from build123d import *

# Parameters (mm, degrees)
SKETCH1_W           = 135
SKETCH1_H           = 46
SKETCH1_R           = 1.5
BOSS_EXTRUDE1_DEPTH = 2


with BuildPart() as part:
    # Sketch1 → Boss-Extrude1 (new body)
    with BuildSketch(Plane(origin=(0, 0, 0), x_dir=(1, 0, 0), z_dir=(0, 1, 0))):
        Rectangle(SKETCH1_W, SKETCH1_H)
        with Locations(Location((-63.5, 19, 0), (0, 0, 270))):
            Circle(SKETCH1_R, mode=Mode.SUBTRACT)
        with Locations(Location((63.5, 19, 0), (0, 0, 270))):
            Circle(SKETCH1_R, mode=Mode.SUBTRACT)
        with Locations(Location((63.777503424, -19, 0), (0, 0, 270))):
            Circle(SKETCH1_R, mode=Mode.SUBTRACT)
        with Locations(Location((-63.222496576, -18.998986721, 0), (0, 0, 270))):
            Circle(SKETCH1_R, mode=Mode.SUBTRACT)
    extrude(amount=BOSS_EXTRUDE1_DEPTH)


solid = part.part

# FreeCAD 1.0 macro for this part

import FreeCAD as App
import Part
import Sketcher

V = App.Vector


def add_polygon(sketch, points):
    """Adds a closed chain of lines whose ends are joined by coincident constraints."""
    first, n = sketch.GeometryCount, len(points)
    for a, b in zip(points, points[1:] + points[:1]):
        sketch.addGeometry(Part.LineSegment(App.Vector(*a, 0), App.Vector(*b, 0)), False)
    for i in range(n):
        sketch.addConstraint(Sketcher.Constraint("Coincident", first + i, 2, first + (i + 1) % n, 1))

doc = App.newDocument("Part")
body = doc.addObject("PartDesign::Body", "Body")

# Sketch on XZ plane
sketch1 = body.newObject("Sketcher::SketchObject", "Sketch")
sketch1.AttachmentSupport = (doc.getObject("XZ_Plane"), [""])
sketch1.MapMode = "FlatFace"
add_polygon(sketch1, [(-67.5, -23), (-67.5, 23), (67.5, 23), (67.5, -23)])  # lines 0-3
sketch1.addGeometry(Part.Circle(V(-63.222497, 18.998987, 0), V(0, 0, 1), 1.5), False)  # 4
sketch1.addGeometry(Part.Circle(V(63.777503, 19, 0), V(0, 0, 1), 1.5), False)  # 5
sketch1.addGeometry(Part.Circle(V(-63.5, -19, 0), V(0, 0, 1), 1.5), False)  # 6
sketch1.addGeometry(Part.Circle(V(63.5, -19, 0), V(0, 0, 1), 1.5), False)  # 7
sketch1.addConstraint([
    Sketcher.Constraint("Vertical", 0),
    Sketcher.Constraint("Horizontal", 1),
    Sketcher.Constraint("Vertical", 2),
    Sketcher.Constraint("Horizontal", 3),
    Sketcher.Constraint("Equal", 4, 5),
    Sketcher.Constraint("Equal", 5, 6),
    Sketcher.Constraint("Equal", 6, 7),
    Sketcher.Constraint("Symmetric", 0, 2, 2, 2, -1, 1),
    Sketcher.Constraint("Symmetric", 6, 3, 7, 3, -2),
    Sketcher.Constraint("Diameter", 4, 3.0),
    Sketcher.Constraint("DistanceX", 1, 1, 1, 2, 135.0),
    Sketcher.Constraint("DistanceY", 0, 1, 0, 2, 46.0),
    Sketcher.Constraint("DistanceY", -1, 1, 5, 3, 19.0),
    Sketcher.Constraint("DistanceY", 6, 3, -1, 1, 19.0),
    Sketcher.Constraint("DistanceX", 4, 3, 5, 3, 127.0),
    Sketcher.Constraint("DistanceX", 6, 3, 7, 3, 127.0),
    Sketcher.Constraint("DistanceX", 4, 3, -1, 1, 63.222497),
    Sketcher.Constraint("DistanceY", -1, 1, 4, 3, 18.998987),
])
pad1 = body.newObject("PartDesign::Pad", "Pad")
pad1.Profile = sketch1
pad1.Length = 2
pad1.Reversed = True

doc.recompute()
